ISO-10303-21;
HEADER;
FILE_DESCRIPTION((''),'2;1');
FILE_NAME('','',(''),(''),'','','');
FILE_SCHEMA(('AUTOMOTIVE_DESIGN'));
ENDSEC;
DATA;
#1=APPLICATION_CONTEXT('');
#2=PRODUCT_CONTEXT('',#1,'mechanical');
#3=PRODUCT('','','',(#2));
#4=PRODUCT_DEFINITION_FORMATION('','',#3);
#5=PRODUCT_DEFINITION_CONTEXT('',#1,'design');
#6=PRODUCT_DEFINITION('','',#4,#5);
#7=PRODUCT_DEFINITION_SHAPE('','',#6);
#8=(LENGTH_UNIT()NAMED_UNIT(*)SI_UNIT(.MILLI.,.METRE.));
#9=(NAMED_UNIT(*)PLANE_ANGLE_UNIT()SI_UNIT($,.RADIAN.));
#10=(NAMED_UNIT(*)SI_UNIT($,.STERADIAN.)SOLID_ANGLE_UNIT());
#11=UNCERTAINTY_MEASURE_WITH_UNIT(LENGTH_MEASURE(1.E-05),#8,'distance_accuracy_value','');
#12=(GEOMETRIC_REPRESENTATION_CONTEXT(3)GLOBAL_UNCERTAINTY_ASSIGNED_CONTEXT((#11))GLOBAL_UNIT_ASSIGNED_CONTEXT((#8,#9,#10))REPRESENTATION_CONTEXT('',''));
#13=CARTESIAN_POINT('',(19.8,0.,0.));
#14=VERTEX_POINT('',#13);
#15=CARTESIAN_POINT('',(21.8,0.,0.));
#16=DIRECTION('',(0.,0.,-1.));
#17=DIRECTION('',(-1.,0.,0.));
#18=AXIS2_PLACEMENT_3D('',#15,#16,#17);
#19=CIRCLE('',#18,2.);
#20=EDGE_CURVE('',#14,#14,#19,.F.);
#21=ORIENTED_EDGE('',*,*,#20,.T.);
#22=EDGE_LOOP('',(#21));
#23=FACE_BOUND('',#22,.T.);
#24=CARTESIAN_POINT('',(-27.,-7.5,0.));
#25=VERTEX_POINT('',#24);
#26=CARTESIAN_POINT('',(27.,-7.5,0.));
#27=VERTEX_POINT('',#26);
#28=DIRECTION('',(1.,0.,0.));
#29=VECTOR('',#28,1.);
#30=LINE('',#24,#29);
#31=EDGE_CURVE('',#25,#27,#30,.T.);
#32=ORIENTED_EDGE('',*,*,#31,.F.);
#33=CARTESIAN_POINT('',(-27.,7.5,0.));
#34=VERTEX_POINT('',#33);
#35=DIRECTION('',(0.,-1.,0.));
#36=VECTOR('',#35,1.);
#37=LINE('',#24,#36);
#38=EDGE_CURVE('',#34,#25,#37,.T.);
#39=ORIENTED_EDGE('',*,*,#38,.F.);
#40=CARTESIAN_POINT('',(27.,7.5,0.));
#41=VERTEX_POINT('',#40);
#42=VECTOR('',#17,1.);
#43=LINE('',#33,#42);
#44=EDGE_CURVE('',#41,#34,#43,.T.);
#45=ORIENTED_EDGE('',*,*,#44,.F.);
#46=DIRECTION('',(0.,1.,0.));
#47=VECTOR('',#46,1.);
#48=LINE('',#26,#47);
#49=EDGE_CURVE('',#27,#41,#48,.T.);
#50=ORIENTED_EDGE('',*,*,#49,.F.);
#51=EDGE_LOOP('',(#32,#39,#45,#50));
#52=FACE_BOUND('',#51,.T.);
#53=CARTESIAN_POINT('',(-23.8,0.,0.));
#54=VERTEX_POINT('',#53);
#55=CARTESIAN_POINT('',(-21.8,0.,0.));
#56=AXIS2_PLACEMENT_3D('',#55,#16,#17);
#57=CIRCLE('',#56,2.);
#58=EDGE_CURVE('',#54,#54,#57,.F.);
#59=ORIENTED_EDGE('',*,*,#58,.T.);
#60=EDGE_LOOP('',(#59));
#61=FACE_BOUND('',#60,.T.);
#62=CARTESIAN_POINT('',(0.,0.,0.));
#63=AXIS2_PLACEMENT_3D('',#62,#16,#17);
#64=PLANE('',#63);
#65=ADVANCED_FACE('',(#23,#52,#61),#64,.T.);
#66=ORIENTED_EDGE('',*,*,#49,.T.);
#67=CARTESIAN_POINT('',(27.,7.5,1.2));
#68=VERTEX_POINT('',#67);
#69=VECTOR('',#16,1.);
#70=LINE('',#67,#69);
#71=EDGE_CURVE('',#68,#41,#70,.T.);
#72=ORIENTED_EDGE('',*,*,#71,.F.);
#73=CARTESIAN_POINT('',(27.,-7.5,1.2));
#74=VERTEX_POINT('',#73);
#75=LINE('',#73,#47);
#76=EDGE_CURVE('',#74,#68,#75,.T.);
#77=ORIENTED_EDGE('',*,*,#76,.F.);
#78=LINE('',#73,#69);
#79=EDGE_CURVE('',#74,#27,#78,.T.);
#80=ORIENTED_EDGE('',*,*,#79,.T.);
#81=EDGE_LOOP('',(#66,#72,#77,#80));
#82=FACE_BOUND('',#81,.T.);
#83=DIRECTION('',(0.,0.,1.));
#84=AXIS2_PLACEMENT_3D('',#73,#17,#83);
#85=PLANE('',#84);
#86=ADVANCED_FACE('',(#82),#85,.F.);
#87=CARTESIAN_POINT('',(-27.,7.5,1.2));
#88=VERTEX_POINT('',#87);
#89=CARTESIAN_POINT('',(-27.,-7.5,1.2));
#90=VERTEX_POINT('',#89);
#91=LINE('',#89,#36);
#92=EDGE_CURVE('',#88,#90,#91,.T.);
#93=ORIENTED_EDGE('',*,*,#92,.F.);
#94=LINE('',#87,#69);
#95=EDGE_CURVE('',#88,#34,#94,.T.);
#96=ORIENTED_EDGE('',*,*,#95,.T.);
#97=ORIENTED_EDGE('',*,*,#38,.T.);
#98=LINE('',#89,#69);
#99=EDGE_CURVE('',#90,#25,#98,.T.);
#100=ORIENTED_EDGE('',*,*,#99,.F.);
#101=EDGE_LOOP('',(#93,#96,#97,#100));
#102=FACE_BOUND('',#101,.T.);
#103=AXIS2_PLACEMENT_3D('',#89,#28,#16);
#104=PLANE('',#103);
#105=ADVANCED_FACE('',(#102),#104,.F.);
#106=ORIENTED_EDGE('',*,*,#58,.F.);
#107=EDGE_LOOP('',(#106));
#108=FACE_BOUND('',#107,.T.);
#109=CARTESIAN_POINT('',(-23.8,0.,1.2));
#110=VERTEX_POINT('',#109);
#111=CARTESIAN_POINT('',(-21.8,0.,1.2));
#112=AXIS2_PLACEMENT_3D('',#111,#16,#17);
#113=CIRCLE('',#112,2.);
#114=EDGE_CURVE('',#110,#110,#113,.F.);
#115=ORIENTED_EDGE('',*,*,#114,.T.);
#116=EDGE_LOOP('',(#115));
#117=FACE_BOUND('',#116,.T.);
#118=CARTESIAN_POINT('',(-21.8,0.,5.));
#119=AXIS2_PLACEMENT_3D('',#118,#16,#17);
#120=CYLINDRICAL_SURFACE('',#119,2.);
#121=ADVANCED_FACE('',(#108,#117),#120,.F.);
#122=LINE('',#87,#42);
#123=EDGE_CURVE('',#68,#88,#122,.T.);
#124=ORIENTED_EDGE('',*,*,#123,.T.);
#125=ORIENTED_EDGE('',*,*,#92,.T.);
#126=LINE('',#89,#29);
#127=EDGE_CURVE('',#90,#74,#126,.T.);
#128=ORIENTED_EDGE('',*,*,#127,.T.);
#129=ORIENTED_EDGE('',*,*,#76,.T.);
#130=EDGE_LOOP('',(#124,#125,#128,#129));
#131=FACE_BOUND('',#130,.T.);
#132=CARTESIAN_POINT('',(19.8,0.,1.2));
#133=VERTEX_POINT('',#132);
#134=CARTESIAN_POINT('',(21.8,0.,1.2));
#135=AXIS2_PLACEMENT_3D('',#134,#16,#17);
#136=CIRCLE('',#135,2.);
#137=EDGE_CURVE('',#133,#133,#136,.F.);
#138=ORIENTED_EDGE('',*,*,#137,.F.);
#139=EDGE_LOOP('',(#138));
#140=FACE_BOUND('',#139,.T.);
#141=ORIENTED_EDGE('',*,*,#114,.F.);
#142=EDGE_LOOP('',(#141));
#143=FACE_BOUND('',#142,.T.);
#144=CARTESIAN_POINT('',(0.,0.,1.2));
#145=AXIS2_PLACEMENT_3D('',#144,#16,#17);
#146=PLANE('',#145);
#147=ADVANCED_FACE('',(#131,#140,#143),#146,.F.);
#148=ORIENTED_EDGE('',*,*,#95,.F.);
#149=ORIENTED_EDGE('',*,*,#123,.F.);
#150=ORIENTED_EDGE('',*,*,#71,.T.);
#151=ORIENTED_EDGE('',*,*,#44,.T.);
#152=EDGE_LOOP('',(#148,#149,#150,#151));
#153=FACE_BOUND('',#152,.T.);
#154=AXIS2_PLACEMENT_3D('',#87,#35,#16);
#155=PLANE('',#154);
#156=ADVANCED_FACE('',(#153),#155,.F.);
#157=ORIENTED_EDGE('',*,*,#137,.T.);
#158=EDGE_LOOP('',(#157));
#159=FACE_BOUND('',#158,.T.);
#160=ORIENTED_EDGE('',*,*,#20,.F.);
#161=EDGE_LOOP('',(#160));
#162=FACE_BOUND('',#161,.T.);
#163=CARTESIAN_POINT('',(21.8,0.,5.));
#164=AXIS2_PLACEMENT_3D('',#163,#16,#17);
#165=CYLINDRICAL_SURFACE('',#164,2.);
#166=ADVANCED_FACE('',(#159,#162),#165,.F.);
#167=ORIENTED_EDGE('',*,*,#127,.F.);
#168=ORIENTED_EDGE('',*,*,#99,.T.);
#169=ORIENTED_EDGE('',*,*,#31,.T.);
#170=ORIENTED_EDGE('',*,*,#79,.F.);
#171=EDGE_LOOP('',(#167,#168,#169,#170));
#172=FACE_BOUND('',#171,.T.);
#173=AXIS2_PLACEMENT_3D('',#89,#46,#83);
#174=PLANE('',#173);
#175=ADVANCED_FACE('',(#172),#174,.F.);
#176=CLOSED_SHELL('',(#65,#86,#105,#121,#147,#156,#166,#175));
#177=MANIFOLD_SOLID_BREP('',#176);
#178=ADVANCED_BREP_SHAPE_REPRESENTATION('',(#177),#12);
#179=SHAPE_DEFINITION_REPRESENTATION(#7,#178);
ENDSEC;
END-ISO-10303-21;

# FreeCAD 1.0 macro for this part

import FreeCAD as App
import Part
import Sketcher
Q = App.Units.Quantity


def add_polygon(sketch, points):
    """Adds a closed chain of lines whose ends are joined by coincident constraints."""
    first, n = sketch.GeometryCount, len(points)
    for a, b in zip(points, points[1:] + points[:1]):
        sketch.addGeometry(Part.LineSegment(App.Vector(*a, 0), App.Vector(*b, 0)), False)
    for i in range(n):
        sketch.addConstraint(Sketcher.Constraint("Coincident", first + i, 2, first + (i + 1) % n, 1))

doc = App.newDocument("Part")
body = doc.addObject("PartDesign::Body", "Body")

sketch1 = body.newObject("Sketcher::SketchObject", "Sketch")
sketch1.AttachmentSupport = (doc.getObject("XY_Plane"), [""])
sketch1.MapMode = "FlatFace"
add_polygon(sketch1, [(-27, 8), (-27, -8), (27, -8), (27, 8)])
sketch1.addConstraint([
    Sketcher.Constraint("Vertical", 0),
    Sketcher.Constraint("Horizontal", 1),
    Sketcher.Constraint("Vertical", 2),
    Sketcher.Constraint("Horizontal", 3),
    Sketcher.Constraint("Symmetric", 0, 2, 2, 2, -1, 1),
    Sketcher.Constraint("DistanceX", 1, 1, 1, 2, Q("54 mm")),
    Sketcher.Constraint("DistanceY", 0, 2, 0, 1, Q("15 mm")),
])
pad1 = body.newObject("PartDesign::Pad", "Pad")
pad1.Profile = sketch1
pad1.Length = 1.2

sketch2 = body.newObject("Sketcher::SketchObject", "Sketch001")
sketch2.AttachmentSupport = (doc.getObject("XY_Plane"), [""])
sketch2.MapMode = "FlatFace"
sketch2.addGeometry([
    Part.Circle(App.Vector(-21.8, 0, 0), App.Vector(0, 0, 1), 2),
    Part.Circle(App.Vector(21.8, 0, 0), App.Vector(0, 0, 1), 2),
], False)
sketch2.addConstraint([
    Sketcher.Constraint("Equal", 0, 1),
    Sketcher.Constraint("Symmetric", 0, 3, 1, 3, -1, 1),
    Sketcher.Constraint("PointOnObject", 0, 3, -1),
    Sketcher.Constraint("Diameter", 0, Q("4 mm")),
    Sketcher.Constraint("DistanceX", 0, 3, -1, 1, Q("21.8 mm")),
])
pocket1 = body.newObject("PartDesign::Pocket", "Pocket")
pocket1.Profile = sketch2
pocket1.Type = "ThroughAll"
pocket1.Midplane = True

doc.recompute()
